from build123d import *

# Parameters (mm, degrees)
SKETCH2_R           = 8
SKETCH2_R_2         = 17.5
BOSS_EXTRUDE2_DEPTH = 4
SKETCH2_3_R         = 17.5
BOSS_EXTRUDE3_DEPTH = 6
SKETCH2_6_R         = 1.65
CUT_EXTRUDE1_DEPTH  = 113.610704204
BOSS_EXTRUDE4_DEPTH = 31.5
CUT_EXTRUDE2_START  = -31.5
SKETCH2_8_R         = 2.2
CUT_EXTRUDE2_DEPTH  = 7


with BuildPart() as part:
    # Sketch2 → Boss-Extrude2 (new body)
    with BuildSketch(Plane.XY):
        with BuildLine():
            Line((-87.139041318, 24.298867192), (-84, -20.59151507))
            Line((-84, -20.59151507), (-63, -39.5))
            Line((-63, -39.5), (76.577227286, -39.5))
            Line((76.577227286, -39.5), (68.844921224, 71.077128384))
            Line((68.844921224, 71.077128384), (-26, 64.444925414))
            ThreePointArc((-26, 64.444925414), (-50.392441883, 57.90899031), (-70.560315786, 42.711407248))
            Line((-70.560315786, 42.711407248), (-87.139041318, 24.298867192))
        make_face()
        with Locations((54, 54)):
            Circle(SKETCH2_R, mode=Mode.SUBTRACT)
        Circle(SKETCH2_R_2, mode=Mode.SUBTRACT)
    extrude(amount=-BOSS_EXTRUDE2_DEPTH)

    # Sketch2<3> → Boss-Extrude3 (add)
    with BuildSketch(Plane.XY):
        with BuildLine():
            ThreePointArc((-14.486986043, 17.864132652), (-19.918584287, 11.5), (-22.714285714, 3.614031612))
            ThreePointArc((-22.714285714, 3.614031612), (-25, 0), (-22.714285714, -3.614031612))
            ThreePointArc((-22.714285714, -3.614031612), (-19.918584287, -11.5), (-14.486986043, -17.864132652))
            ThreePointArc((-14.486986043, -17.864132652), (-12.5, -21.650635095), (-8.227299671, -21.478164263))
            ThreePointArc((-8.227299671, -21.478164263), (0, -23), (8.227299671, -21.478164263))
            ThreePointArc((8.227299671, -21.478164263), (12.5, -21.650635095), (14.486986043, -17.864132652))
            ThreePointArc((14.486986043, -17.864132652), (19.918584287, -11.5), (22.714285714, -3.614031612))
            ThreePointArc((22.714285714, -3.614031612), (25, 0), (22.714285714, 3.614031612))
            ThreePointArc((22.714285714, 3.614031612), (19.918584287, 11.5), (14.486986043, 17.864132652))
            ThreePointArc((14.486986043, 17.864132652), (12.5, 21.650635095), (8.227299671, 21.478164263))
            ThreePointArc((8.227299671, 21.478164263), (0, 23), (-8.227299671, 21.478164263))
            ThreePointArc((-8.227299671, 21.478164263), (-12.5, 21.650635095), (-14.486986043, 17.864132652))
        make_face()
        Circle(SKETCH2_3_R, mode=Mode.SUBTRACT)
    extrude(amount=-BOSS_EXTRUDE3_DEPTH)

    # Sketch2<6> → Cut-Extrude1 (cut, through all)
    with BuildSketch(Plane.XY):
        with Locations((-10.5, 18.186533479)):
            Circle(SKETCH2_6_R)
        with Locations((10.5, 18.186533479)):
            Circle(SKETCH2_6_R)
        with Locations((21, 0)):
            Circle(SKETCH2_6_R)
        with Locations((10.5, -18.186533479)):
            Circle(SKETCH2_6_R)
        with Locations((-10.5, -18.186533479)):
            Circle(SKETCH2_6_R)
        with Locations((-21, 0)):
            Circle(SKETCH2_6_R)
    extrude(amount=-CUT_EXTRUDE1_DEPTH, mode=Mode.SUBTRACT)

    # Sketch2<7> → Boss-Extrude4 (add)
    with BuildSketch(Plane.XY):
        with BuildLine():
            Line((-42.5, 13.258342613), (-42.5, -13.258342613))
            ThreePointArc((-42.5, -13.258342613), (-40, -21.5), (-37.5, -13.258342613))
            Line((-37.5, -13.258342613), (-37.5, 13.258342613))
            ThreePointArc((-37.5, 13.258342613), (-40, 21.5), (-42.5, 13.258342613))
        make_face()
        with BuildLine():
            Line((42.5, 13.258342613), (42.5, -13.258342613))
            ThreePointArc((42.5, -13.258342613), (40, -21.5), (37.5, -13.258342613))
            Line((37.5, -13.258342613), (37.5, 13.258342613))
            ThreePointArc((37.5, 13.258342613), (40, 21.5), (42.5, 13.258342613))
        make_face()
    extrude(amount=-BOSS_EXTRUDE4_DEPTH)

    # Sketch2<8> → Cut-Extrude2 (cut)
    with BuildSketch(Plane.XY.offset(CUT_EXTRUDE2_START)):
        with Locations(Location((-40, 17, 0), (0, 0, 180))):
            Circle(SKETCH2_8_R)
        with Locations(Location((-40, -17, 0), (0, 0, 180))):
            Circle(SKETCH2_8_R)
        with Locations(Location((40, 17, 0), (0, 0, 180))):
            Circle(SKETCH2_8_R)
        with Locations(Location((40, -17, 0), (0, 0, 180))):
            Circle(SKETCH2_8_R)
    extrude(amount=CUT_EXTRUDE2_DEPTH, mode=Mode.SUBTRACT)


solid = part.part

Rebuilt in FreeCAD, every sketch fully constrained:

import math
import FreeCAD as App
import Part
import Sketcher

V = App.Vector
Q = App.Units.Quantity

doc = App.newDocument("Part")
body = doc.addObject("PartDesign::Body", "Body")

# Sketch on XY plane
sketch1 = doc.addObject("Sketcher::SketchObject", "Sketch")
body.addObject(sketch1)
sketch1.AttachmentSupport = (doc.XY_Plane, [""])
sketch1.MapMode = "FlatFace"
sketch1.addGeometry(Part.LineSegment(V(-87, 24, 0), V(-84, -21, 0)), False)
sketch1.addGeometry(Part.LineSegment(V(-84, -21, 0), V(-63, -40, 0)), False)
sketch1.addGeometry(Part.LineSegment(V(-63, -40, 0), V(77, -40, 0)), False)
sketch1.addGeometry(Part.LineSegment(V(77, -40, 0), V(69, 71, 0)), False)
sketch1.addGeometry(Part.LineSegment(V(69, 71, 0), V(-26, 64, 0)), False)
sketch1.addGeometry(Part.ArcOfCircle(Part.Circle(V(-21, -2, 0), V(0, 0, 1), 66), math.radians(94), math.radians(138)), False)
sketch1.addGeometry(Part.LineSegment(V(-71, 43, 0), V(-87, 24, 0)), False)
sketch1.addGeometry(Part.Circle(V(0, 0, 0), V(0, 0, 1), 18), False)
sketch1.addGeometry(Part.Circle(V(54, 54, 0), V(0, 0, 1), 8), False)
sketch1.addConstraint(Sketcher.Constraint("Coincident", 0, 2, 1, 1))
sketch1.addConstraint(Sketcher.Constraint("Coincident", 1, 2, 2, 1))
sketch1.addConstraint(Sketcher.Constraint("Coincident", 2, 2, 3, 1))
sketch1.addConstraint(Sketcher.Constraint("Coincident", 3, 2, 4, 1))
sketch1.addConstraint(Sketcher.Constraint("Tangent", 4, 2, 5, 1))
sketch1.addConstraint(Sketcher.Constraint("Tangent", 5, 2, 6, 1))
sketch1.addConstraint(Sketcher.Constraint("Coincident", 6, 2, 0, 1))
sketch1.addConstraint(Sketcher.Constraint("Horizontal", 2))
sketch1.addConstraint(Sketcher.Constraint("Coincident", 7, 3, -1, 1))
sketch1.addConstraint(Sketcher.Constraint("Parallel", 0, 3))
sketch1.addConstraint(Sketcher.Constraint("Perpendicular", 3, 4))
sketch1.addConstraint(Sketcher.Constraint("Perpendicular", 1, 6))
sketch1.addConstraint(Sketcher.Constraint("Diameter", 7, Q("35 mm")))
sketch1.addConstraint(Sketcher.Constraint("Diameter", 8, Q("16 mm")))
sketch1.addConstraint(Sketcher.Constraint("Angle", 0, Q("-86 deg")))
sketch1.addConstraint(Sketcher.Constraint("Angle", 1, Q("-42 deg")))
sketch1.addConstraint(Sketcher.Constraint("Distance", 0, Q("45 mm")))
sketch1.addConstraint(Sketcher.Constraint("DistanceX", -1, 1, 8, 3, Q("54 mm")))
sketch1.addConstraint(Sketcher.Constraint("DistanceY", -1, 1, 8, 3, Q("54 mm")))
sketch1.addConstraint(Sketcher.Constraint("DistanceX", 0, 2, -1, 1, Q("84 mm")))
sketch1.addConstraint(Sketcher.Constraint("DistanceX", 1, 2, -1, 1, Q("63 mm")))
sketch1.addConstraint(Sketcher.Constraint("DistanceX", 4, 2, -1, 1, Q("26 mm")))
sketch1.addConstraint(Sketcher.Constraint("DistanceY", 1, 2, -1, 1, Q("39.5 mm")))
sketch1.addConstraint(Sketcher.Constraint("Radius", 5, Q("66.17328 mm")))
sketch1.addConstraint(Sketcher.Constraint("DistanceX", 2, 1, 2, 2, Q("139.577227 mm")))
pad1 = doc.addObject("PartDesign::Pad", "Pad")
body.addObject(pad1)
pad1.Profile = sketch1
pad1.Length = 4
pad1.Reversed = True

# Sketch on XY plane
sketch2 = doc.addObject("Sketcher::SketchObject", "Sketch001")
body.addObject(sketch2)
sketch2.AttachmentSupport = (doc.XY_Plane, [""])
sketch2.MapMode = "FlatFace"
sketch2.addGeometry(Part.ArcOfCircle(Part.Circle(V(0, 0, 0), V(0, 0, 1), 23), math.radians(129), math.radians(171)), False)
sketch2.addGeometry(Part.ArcOfCircle(Part.Circle(V(-21, 0, 0), V(0, 0, 1), 4), math.radians(115), math.radians(245)), False)
sketch2.addGeometry(Part.ArcOfCircle(Part.Circle(V(0, 0, 0), V(0, 0, 1), 23), math.radians(-171), math.radians(-129)), False)
sketch2.addGeometry(Part.ArcOfCircle(Part.Circle(V(-10.5, -18.2, 0), V(0, 0, 1), 4), math.radians(175), math.radians(305)), False)
sketch2.addGeometry(Part.ArcOfCircle(Part.Circle(V(0, 0, 0), V(0, 0, 1), 23), math.radians(-111), math.radians(-69)), False)
sketch2.addGeometry(Part.ArcOfCircle(Part.Circle(V(10.5, -18.2, 0), V(0, 0, 1), 4), math.radians(-125), math.radians(5)), False)
sketch2.addGeometry(Part.ArcOfCircle(Part.Circle(V(0, 0, 0), V(0, 0, 1), 23), math.radians(-51), math.radians(-9)), False)
sketch2.addGeometry(Part.ArcOfCircle(Part.Circle(V(21, 0, 0), V(0, 0, 1), 4), math.radians(-65), math.radians(65)), False)
sketch2.addGeometry(Part.ArcOfCircle(Part.Circle(V(0, 0, 0), V(0, 0, 1), 23), math.radians(9), math.radians(51)), False)
sketch2.addGeometry(Part.ArcOfCircle(Part.Circle(V(10.5, 18.2, 0), V(0, 0, 1), 4), math.radians(-5), math.radians(125)), False)
sketch2.addGeometry(Part.ArcOfCircle(Part.Circle(V(0, 0, 0), V(0, 0, 1), 23), math.radians(69), math.radians(111)), False)
sketch2.addGeometry(Part.ArcOfCircle(Part.Circle(V(-10.5, 18.2, 0), V(0, 0, 1), 4), math.radians(55), math.radians(185)), False)
sketch2.addGeometry(Part.Circle(V(0, 0, 0), V(0, 0, 1), 17.5), False)
sketch2.addConstraint(Sketcher.Constraint("Coincident", 0, 2, 1, 1))
sketch2.addConstraint(Sketcher.Constraint("Coincident", 1, 2, 2, 1))
sketch2.addConstraint(Sketcher.Constraint("Coincident", 2, 2, 3, 1))
sketch2.addConstraint(Sketcher.Constraint("Coincident", 3, 2, 4, 1))
sketch2.addConstraint(Sketcher.Constraint("Coincident", 4, 2, 5, 1))
sketch2.addConstraint(Sketcher.Constraint("Coincident", 5, 2, 6, 1))
sketch2.addConstraint(Sketcher.Constraint("Coincident", 6, 2, 7, 1))
sketch2.addConstraint(Sketcher.Constraint("Coincident", 7, 2, 8, 1))
sketch2.addConstraint(Sketcher.Constraint("Coincident", 8, 2, 9, 1))
sketch2.addConstraint(Sketcher.Constraint("Coincident", 9, 2, 10, 1))
sketch2.addConstraint(Sketcher.Constraint("Coincident", 10, 2, 11, 1))
sketch2.addConstraint(Sketcher.Constraint("Coincident", 11, 2, 0, 1))
sketch2.addConstraint(Sketcher.Constraint("Coincident", 0, 3, -1, 1))
sketch2.addConstraint(Sketcher.Constraint("Coincident", 2, 3, -1, 1))
sketch2.addConstraint(Sketcher.Constraint("Coincident", 4, 3, -1, 1))
sketch2.addConstraint(Sketcher.Constraint("Coincident", 6, 3, -1, 1))
sketch2.addConstraint(Sketcher.Constraint("Coincident", 8, 3, -1, 1))
sketch2.addConstraint(Sketcher.Constraint("Coincident", 10, 3, -1, 1))
sketch2.addConstraint(Sketcher.Constraint("Coincident", 12, 3, -1, 1))
sketch2.addConstraint(Sketcher.Constraint("Equal", 0, 2))
sketch2.addConstraint(Sketcher.Constraint("Equal", 1, 3))
sketch2.addConstraint(Sketcher.Constraint("Equal", 2, 4))
sketch2.addConstraint(Sketcher.Constraint("Equal", 3, 5))
sketch2.addConstraint(Sketcher.Constraint("Equal", 4, 6))
sketch2.addConstraint(Sketcher.Constraint("Equal", 5, 7))
sketch2.addConstraint(Sketcher.Constraint("Equal", 6, 8))
sketch2.addConstraint(Sketcher.Constraint("Equal", 7, 9))
sketch2.addConstraint(Sketcher.Constraint("Equal", 8, 10))
sketch2.addConstraint(Sketcher.Constraint("Equal", 9, 11))
sketch2.addConstraint(Sketcher.Constraint("Symmetric", 1, 3, 7, 3, -1, 1))
sketch2.addConstraint(Sketcher.Constraint("Symmetric", 3, 3, 9, 3, -1, 1))
sketch2.addConstraint(Sketcher.Constraint("Symmetric", 5, 3, 11, 3, -1, 1))
sketch2.addConstraint(Sketcher.Constraint("Symmetric", 3, 3, 5, 3, -2))
sketch2.addConstraint(Sketcher.Constraint("PointOnObject", 1, 3, -1))
sketch2.addConstraint(Sketcher.Constraint("Diameter", 12, Q("35 mm")))
sketch2.addConstraint(Sketcher.Constraint("Radius", 0, Q("23 mm")))
sketch2.addConstraint(Sketcher.Constraint("Radius", 1, Q("4 mm")))
sketch2.addConstraint(Sketcher.Constraint("DistanceX", 1, 3, -1, 1, Q("21 mm")))
sketch2.addConstraint(Sketcher.Constraint("DistanceX", 3, 3, 5, 3, Q("21 mm")))
sketch2.addConstraint(Sketcher.Constraint("DistanceX", 3, 2, -1, 1, Q("8.2273 mm")))
pad2 = doc.addObject("PartDesign::Pad", "Pad001")
body.addObject(pad2)
pad2.Profile = sketch2
pad2.Length = 6
pad2.Reversed = True

# Sketch on XY plane
sketch3 = doc.addObject("Sketcher::SketchObject", "Sketch002")
body.addObject(sketch3)
sketch3.AttachmentSupport = (doc.XY_Plane, [""])
sketch3.MapMode = "FlatFace"
sketch3.addGeometry(Part.Circle(V(-10.5, 18.2, 0), V(0, 0, 1), 1.6), False)
sketch3.addGeometry(Part.Circle(V(10.5, 18.2, 0), V(0, 0, 1), 1.6), False)
sketch3.addGeometry(Part.Circle(V(21, 0, 0), V(0, 0, 1), 1.6), False)
sketch3.addGeometry(Part.Circle(V(10.5, -18.2, 0), V(0, 0, 1), 1.6), False)
sketch3.addGeometry(Part.Circle(V(-10.5, -18.2, 0), V(0, 0, 1), 1.6), False)
sketch3.addGeometry(Part.Circle(V(-21, 0, 0), V(0, 0, 1), 1.6), False)
sketch3.addConstraint(Sketcher.Constraint("Equal", 0, 1))
sketch3.addConstraint(Sketcher.Constraint("Equal", 1, 2))
sketch3.addConstraint(Sketcher.Constraint("Equal", 2, 3))
sketch3.addConstraint(Sketcher.Constraint("Equal", 3, 4))
sketch3.addConstraint(Sketcher.Constraint("Equal", 4, 5))
sketch3.addConstraint(Sketcher.Constraint("Symmetric", 0, 3, 3, 3, -1, 1))
sketch3.addConstraint(Sketcher.Constraint("Symmetric", 1, 3, 4, 3, -1, 1))
sketch3.addConstraint(Sketcher.Constraint("Symmetric", 2, 3, 5, 3, -1, 1))
sketch3.addConstraint(Sketcher.Constraint("Symmetric", 0, 3, 1, 3, -2))
sketch3.addConstraint(Sketcher.Constraint("PointOnObject", 2, 3, -1))
sketch3.addConstraint(Sketcher.Constraint("Diameter", 0, Q("3.3 mm")))
sketch3.addConstraint(Sketcher.Constraint("DistanceX", -1, 1, 2, 3, Q("21 mm")))
sketch3.addConstraint(Sketcher.Constraint("DistanceX", 0, 3, 1, 3, Q("21 mm")))
sketch3.addConstraint(Sketcher.Constraint("DistanceY", -1, 1, 0, 3, Q("18.186533 mm")))
pocket1 = doc.addObject("PartDesign::Pocket", "Pocket")
body.addObject(pocket1)
pocket1.Profile = sketch3
pocket1.Type = "ThroughAll"

# Sketch on XY plane
sketch4 = doc.addObject("Sketcher::SketchObject", "Sketch003")
body.addObject(sketch4)
sketch4.AttachmentSupport = (doc.XY_Plane, [""])
sketch4.MapMode = "FlatFace"
sketch4.addGeometry(Part.LineSegment(V(-42.5, 13.3, 0), V(-42.5, -13.3, 0)), False)
sketch4.addGeometry(Part.ArcOfCircle(Part.Circle(V(-40, -17, 0), V(0, 0, 1), 4.5), math.radians(124), math.radians(416)), False)
sketch4.addGeometry(Part.LineSegment(V(-37.5, -13.3, 0), V(-37.5, 13.3, 0)), False)
sketch4.addGeometry(Part.ArcOfCircle(Part.Circle(V(-40, 17, 0), V(0, 0, 1), 4.5), math.radians(-56), math.radians(236)), False)
sketch4.addGeometry(Part.LineSegment(V(42.5, -13.3, 0), V(42.5, 13.3, 0)), False)
sketch4.addGeometry(Part.ArcOfCircle(Part.Circle(V(40, 17, 0), V(0, 0, 1), 4.5), math.radians(-56), math.radians(236)), False)
sketch4.addGeometry(Part.LineSegment(V(37.5, 13.3, 0), V(37.5, -13.3, 0)), False)
sketch4.addGeometry(Part.ArcOfCircle(Part.Circle(V(40, -17, 0), V(0, 0, 1), 4.5), math.radians(124), math.radians(416)), False)
sketch4.addConstraint(Sketcher.Constraint("Coincident", 0, 2, 1, 1))
sketch4.addConstraint(Sketcher.Constraint("Coincident", 1, 2, 2, 1))
sketch4.addConstraint(Sketcher.Constraint("Coincident", 2, 2, 3, 1))
sketch4.addConstraint(Sketcher.Constraint("Coincident", 3, 2, 0, 1))
sketch4.addConstraint(Sketcher.Constraint("Coincident", 4, 2, 5, 1))
sketch4.addConstraint(Sketcher.Constraint("Coincident", 5, 2, 6, 1))
sketch4.addConstraint(Sketcher.Constraint("Coincident", 6, 2, 7, 1))
sketch4.addConstraint(Sketcher.Constraint("Coincident", 7, 2, 4, 1))
sketch4.addConstraint(Sketcher.Constraint("Vertical", 0))
sketch4.addConstraint(Sketcher.Constraint("Vertical", 2))
sketch4.addConstraint(Sketcher.Constraint("Vertical", 4))
sketch4.addConstraint(Sketcher.Constraint("Vertical", 6))
sketch4.addConstraint(Sketcher.Constraint("Equal", 1, 3))
sketch4.addConstraint(Sketcher.Constraint("Equal", 3, 5))
sketch4.addConstraint(Sketcher.Constraint("Equal", 5, 7))
sketch4.addConstraint(Sketcher.Constraint("Symmetric", 1, 3, 5, 3, -1, 1))
sketch4.addConstraint(Sketcher.Constraint("Symmetric", 3, 3, 7, 3, -1, 1))
sketch4.addConstraint(Sketcher.Constraint("Symmetric", 3, 3, 5, 3, -2))
sketch4.addConstraint(Sketcher.Constraint("Horizontal", 0, 2, 1, 2))
sketch4.addConstraint(Sketcher.Constraint("Horizontal", 3, 2, 4, 2))
sketch4.addConstraint(Sketcher.Constraint("Horizontal", 4, 2, 5, 2))
sketch4.addConstraint(Sketcher.Constraint("Radius", 1, Q("4.5 mm")))
sketch4.addConstraint(Sketcher.Constraint("DistanceX", 1, 3, -1, 1, Q("40 mm")))
sketch4.addConstraint(Sketcher.Constraint("DistanceY", 1, 3, -1, 1, Q("17 mm")))
sketch4.addConstraint(Sketcher.Constraint("DistanceX", 0, 2, 1, 2, Q("5 mm")))
pad3 = doc.addObject("PartDesign::Pad", "Pad002")
body.addObject(pad3)
pad3.Profile = sketch4
pad3.Length = 31.5
pad3.Reversed = True

# Sketch on XY plane
sketch5 = doc.addObject("Sketcher::SketchObject", "Sketch004")
body.addObject(sketch5)
sketch5.AttachmentSupport = (doc.XY_Plane, [""])
sketch5.MapMode = "FlatFace"
sketch5.AttachmentOffset = App.Placement(V(0, 0, -31.5), App.Rotation())
sketch5.addGeometry(Part.Circle(V(-40, 17, 0), V(0, 0, 1), 2.2), False)
sketch5.addGeometry(Part.Circle(V(-40, -17, 0), V(0, 0, 1), 2.2), False)
sketch5.addGeometry(Part.Circle(V(40, 17, 0), V(0, 0, 1), 2.2), False)
sketch5.addGeometry(Part.Circle(V(40, -17, 0), V(0, 0, 1), 2.2), False)
sketch5.addConstraint(Sketcher.Constraint("Equal", 0, 1))
sketch5.addConstraint(Sketcher.Constraint("Equal", 1, 2))
sketch5.addConstraint(Sketcher.Constraint("Equal", 2, 3))
sketch5.addConstraint(Sketcher.Constraint("Symmetric", 1, 3, 2, 3, -1, 1))
sketch5.addConstraint(Sketcher.Constraint("Symmetric", 0, 3, 3, 3, -1, 1))
sketch5.addConstraint(Sketcher.Constraint("Symmetric", 0, 3, 2, 3, -2))
sketch5.addConstraint(Sketcher.Constraint("Diameter", 0, Q("4.4 mm")))
sketch5.addConstraint(Sketcher.Constraint("DistanceX", 0, 3, -1, 1, Q("40 mm")))
sketch5.addConstraint(Sketcher.Constraint("DistanceY", -1, 1, 0, 3, Q("17 mm")))
pocket2 = doc.addObject("PartDesign::Pocket", "Pocket001")
body.addObject(pocket2)
pocket2.Profile = sketch5
pocket2.Length = 7
pocket2.Reversed = True

doc.recompute()
